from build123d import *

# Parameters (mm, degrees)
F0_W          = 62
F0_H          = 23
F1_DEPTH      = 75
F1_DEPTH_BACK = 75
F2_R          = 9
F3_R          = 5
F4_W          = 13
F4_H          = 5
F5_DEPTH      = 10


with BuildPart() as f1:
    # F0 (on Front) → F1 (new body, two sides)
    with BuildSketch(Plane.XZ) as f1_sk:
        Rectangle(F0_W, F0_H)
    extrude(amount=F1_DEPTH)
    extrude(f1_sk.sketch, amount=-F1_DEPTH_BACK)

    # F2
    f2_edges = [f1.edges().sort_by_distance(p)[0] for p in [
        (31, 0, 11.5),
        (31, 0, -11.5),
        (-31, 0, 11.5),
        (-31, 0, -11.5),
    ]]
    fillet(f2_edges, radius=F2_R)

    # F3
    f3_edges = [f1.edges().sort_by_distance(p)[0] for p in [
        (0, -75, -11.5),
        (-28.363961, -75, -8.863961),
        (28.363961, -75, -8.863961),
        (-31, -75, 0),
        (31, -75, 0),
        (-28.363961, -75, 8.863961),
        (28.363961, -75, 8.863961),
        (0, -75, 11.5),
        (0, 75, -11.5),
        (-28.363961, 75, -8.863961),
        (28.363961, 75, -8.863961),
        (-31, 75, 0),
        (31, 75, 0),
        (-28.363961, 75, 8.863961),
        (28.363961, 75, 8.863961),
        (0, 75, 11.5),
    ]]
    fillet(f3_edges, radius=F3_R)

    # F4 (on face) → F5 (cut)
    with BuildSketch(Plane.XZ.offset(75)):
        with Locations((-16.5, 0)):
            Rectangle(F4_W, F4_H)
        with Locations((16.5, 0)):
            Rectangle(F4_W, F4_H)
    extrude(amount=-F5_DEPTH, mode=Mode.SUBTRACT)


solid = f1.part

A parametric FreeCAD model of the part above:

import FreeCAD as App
import Part
import Sketcher


def edges_at(feature, points):
    """Names of the edges that pass closest to the given points."""
    edges = feature.Shape.Edges
    near = lambda p: min(range(len(edges)), key=lambda i: edges[i].distToShape(Part.Vertex(*p))[0])
    return sorted({f"Edge{near(p) + 1}" for p in points})


def add_polygon(sketch, points):
    """Adds a closed chain of lines whose ends are joined by coincident constraints."""
    first, n = sketch.GeometryCount, len(points)
    for a, b in zip(points, points[1:] + points[:1]):
        sketch.addGeometry(Part.LineSegment(App.Vector(*a, 0), App.Vector(*b, 0)), False)
    for i in range(n):
        sketch.addConstraint(Sketcher.Constraint("Coincident", first + i, 2, first + (i + 1) % n, 1))

doc = App.newDocument("Part")
body = doc.addObject("PartDesign::Body", "Body")

# Sketch on XZ plane
sketch1 = body.newObject("Sketcher::SketchObject", "Sketch")
sketch1.AttachmentSupport = (doc.getObject("XZ_Plane"), [""])
sketch1.MapMode = "FlatFace"
add_polygon(sketch1, [(-31, 12), (-31, -12), (31, -12), (31, 12)])  # lines 0-3
sketch1.addConstraint(Sketcher.Constraint("Vertical", 0))
sketch1.addConstraint(Sketcher.Constraint("Horizontal", 1))
sketch1.addConstraint(Sketcher.Constraint("Vertical", 2))
sketch1.addConstraint(Sketcher.Constraint("Horizontal", 3))
sketch1.addConstraint(Sketcher.Constraint("Symmetric", 0, 2, 2, 2, -1, 1))
sketch1.addConstraint(Sketcher.Constraint("DistanceX", 1, 1, 1, 2, 62.0))
sketch1.addConstraint(Sketcher.Constraint("DistanceY", 0, 2, 0, 1, 23.0))
pad1 = body.newObject("PartDesign::Pad", "Pad")
pad1.Profile = sketch1
pad1.Type = "TwoLengths"
pad1.Length = 75
pad1.Length2 = 75
doc.recompute()

fillet = body.newObject("PartDesign::Fillet", "Fillet")
fillet.Base = (pad1, edges_at(pad1, [
    (31, 0, 11.5),
    (31, 0, -11.5),
    (-31, 0, 11.5),
    (-31, 0, -11.5),
]))
fillet.Radius = 9
doc.recompute()

fillet2 = body.newObject("PartDesign::Fillet", "Fillet001")
fillet2.Base = (fillet, edges_at(fillet, [
    (0, -75, -11.5),
    (-28.364, -75, -8.864),
    (28.364, -75, -8.864),
    (-31, -75, 0),
    (31, -75, 0),
    (-28.364, -75, 8.864),
    (28.364, -75, 8.864),
    (0, -75, 11.5),
    (0, 75, -11.5),
    (-28.364, 75, -8.864),
    (28.364, 75, -8.864),
    (-31, 75, 0),
    (31, 75, 0),
    (-28.364, 75, 8.864),
    (28.364, 75, 8.864),
    (0, 75, 11.5),
]))
fillet2.Radius = 5

# Sketch on XZ plane
sketch2 = body.newObject("Sketcher::SketchObject", "Sketch001")
sketch2.AttachmentSupport = (doc.getObject("XZ_Plane"), [""])
sketch2.MapMode = "FlatFace"
sketch2.AttachmentOffset = App.Placement(App.Vector(0, 0, 75), App.Rotation())
add_polygon(sketch2, [(-23, 2), (-23, -2), (-10, -2), (-10, 2)])  # lines 0-3
add_polygon(sketch2, [(10, 2), (10, -2), (23, -2), (23, 2)])  # lines 4-7
sketch2.addConstraint(Sketcher.Constraint("Vertical", 0))
sketch2.addConstraint(Sketcher.Constraint("Horizontal", 1))
sketch2.addConstraint(Sketcher.Constraint("Vertical", 2))
sketch2.addConstraint(Sketcher.Constraint("Horizontal", 3))
sketch2.addConstraint(Sketcher.Constraint("Vertical", 4))
sketch2.addConstraint(Sketcher.Constraint("Horizontal", 5))
sketch2.addConstraint(Sketcher.Constraint("Vertical", 6))
sketch2.addConstraint(Sketcher.Constraint("Horizontal", 7))
sketch2.addConstraint(Sketcher.Constraint("Symmetric", 2, 2, 4, 2, -1, 1))
sketch2.addConstraint(Sketcher.Constraint("Symmetric", 0, 2, 6, 2, -1, 1))
sketch2.addConstraint(Sketcher.Constraint("Horizontal", 1, 2, 4, 2))
sketch2.addConstraint(Sketcher.Constraint("DistanceX", 1, 1, 1, 2, 13.0))
sketch2.addConstraint(Sketcher.Constraint("DistanceY", 0, 2, 0, 1, 5.0))
sketch2.addConstraint(Sketcher.Constraint("DistanceX", 0, 2, -1, 1, 23.0))
pocket1 = body.newObject("PartDesign::Pocket", "Pocket")
pocket1.Profile = sketch2
pocket1.Length = 10

doc.recompute()
